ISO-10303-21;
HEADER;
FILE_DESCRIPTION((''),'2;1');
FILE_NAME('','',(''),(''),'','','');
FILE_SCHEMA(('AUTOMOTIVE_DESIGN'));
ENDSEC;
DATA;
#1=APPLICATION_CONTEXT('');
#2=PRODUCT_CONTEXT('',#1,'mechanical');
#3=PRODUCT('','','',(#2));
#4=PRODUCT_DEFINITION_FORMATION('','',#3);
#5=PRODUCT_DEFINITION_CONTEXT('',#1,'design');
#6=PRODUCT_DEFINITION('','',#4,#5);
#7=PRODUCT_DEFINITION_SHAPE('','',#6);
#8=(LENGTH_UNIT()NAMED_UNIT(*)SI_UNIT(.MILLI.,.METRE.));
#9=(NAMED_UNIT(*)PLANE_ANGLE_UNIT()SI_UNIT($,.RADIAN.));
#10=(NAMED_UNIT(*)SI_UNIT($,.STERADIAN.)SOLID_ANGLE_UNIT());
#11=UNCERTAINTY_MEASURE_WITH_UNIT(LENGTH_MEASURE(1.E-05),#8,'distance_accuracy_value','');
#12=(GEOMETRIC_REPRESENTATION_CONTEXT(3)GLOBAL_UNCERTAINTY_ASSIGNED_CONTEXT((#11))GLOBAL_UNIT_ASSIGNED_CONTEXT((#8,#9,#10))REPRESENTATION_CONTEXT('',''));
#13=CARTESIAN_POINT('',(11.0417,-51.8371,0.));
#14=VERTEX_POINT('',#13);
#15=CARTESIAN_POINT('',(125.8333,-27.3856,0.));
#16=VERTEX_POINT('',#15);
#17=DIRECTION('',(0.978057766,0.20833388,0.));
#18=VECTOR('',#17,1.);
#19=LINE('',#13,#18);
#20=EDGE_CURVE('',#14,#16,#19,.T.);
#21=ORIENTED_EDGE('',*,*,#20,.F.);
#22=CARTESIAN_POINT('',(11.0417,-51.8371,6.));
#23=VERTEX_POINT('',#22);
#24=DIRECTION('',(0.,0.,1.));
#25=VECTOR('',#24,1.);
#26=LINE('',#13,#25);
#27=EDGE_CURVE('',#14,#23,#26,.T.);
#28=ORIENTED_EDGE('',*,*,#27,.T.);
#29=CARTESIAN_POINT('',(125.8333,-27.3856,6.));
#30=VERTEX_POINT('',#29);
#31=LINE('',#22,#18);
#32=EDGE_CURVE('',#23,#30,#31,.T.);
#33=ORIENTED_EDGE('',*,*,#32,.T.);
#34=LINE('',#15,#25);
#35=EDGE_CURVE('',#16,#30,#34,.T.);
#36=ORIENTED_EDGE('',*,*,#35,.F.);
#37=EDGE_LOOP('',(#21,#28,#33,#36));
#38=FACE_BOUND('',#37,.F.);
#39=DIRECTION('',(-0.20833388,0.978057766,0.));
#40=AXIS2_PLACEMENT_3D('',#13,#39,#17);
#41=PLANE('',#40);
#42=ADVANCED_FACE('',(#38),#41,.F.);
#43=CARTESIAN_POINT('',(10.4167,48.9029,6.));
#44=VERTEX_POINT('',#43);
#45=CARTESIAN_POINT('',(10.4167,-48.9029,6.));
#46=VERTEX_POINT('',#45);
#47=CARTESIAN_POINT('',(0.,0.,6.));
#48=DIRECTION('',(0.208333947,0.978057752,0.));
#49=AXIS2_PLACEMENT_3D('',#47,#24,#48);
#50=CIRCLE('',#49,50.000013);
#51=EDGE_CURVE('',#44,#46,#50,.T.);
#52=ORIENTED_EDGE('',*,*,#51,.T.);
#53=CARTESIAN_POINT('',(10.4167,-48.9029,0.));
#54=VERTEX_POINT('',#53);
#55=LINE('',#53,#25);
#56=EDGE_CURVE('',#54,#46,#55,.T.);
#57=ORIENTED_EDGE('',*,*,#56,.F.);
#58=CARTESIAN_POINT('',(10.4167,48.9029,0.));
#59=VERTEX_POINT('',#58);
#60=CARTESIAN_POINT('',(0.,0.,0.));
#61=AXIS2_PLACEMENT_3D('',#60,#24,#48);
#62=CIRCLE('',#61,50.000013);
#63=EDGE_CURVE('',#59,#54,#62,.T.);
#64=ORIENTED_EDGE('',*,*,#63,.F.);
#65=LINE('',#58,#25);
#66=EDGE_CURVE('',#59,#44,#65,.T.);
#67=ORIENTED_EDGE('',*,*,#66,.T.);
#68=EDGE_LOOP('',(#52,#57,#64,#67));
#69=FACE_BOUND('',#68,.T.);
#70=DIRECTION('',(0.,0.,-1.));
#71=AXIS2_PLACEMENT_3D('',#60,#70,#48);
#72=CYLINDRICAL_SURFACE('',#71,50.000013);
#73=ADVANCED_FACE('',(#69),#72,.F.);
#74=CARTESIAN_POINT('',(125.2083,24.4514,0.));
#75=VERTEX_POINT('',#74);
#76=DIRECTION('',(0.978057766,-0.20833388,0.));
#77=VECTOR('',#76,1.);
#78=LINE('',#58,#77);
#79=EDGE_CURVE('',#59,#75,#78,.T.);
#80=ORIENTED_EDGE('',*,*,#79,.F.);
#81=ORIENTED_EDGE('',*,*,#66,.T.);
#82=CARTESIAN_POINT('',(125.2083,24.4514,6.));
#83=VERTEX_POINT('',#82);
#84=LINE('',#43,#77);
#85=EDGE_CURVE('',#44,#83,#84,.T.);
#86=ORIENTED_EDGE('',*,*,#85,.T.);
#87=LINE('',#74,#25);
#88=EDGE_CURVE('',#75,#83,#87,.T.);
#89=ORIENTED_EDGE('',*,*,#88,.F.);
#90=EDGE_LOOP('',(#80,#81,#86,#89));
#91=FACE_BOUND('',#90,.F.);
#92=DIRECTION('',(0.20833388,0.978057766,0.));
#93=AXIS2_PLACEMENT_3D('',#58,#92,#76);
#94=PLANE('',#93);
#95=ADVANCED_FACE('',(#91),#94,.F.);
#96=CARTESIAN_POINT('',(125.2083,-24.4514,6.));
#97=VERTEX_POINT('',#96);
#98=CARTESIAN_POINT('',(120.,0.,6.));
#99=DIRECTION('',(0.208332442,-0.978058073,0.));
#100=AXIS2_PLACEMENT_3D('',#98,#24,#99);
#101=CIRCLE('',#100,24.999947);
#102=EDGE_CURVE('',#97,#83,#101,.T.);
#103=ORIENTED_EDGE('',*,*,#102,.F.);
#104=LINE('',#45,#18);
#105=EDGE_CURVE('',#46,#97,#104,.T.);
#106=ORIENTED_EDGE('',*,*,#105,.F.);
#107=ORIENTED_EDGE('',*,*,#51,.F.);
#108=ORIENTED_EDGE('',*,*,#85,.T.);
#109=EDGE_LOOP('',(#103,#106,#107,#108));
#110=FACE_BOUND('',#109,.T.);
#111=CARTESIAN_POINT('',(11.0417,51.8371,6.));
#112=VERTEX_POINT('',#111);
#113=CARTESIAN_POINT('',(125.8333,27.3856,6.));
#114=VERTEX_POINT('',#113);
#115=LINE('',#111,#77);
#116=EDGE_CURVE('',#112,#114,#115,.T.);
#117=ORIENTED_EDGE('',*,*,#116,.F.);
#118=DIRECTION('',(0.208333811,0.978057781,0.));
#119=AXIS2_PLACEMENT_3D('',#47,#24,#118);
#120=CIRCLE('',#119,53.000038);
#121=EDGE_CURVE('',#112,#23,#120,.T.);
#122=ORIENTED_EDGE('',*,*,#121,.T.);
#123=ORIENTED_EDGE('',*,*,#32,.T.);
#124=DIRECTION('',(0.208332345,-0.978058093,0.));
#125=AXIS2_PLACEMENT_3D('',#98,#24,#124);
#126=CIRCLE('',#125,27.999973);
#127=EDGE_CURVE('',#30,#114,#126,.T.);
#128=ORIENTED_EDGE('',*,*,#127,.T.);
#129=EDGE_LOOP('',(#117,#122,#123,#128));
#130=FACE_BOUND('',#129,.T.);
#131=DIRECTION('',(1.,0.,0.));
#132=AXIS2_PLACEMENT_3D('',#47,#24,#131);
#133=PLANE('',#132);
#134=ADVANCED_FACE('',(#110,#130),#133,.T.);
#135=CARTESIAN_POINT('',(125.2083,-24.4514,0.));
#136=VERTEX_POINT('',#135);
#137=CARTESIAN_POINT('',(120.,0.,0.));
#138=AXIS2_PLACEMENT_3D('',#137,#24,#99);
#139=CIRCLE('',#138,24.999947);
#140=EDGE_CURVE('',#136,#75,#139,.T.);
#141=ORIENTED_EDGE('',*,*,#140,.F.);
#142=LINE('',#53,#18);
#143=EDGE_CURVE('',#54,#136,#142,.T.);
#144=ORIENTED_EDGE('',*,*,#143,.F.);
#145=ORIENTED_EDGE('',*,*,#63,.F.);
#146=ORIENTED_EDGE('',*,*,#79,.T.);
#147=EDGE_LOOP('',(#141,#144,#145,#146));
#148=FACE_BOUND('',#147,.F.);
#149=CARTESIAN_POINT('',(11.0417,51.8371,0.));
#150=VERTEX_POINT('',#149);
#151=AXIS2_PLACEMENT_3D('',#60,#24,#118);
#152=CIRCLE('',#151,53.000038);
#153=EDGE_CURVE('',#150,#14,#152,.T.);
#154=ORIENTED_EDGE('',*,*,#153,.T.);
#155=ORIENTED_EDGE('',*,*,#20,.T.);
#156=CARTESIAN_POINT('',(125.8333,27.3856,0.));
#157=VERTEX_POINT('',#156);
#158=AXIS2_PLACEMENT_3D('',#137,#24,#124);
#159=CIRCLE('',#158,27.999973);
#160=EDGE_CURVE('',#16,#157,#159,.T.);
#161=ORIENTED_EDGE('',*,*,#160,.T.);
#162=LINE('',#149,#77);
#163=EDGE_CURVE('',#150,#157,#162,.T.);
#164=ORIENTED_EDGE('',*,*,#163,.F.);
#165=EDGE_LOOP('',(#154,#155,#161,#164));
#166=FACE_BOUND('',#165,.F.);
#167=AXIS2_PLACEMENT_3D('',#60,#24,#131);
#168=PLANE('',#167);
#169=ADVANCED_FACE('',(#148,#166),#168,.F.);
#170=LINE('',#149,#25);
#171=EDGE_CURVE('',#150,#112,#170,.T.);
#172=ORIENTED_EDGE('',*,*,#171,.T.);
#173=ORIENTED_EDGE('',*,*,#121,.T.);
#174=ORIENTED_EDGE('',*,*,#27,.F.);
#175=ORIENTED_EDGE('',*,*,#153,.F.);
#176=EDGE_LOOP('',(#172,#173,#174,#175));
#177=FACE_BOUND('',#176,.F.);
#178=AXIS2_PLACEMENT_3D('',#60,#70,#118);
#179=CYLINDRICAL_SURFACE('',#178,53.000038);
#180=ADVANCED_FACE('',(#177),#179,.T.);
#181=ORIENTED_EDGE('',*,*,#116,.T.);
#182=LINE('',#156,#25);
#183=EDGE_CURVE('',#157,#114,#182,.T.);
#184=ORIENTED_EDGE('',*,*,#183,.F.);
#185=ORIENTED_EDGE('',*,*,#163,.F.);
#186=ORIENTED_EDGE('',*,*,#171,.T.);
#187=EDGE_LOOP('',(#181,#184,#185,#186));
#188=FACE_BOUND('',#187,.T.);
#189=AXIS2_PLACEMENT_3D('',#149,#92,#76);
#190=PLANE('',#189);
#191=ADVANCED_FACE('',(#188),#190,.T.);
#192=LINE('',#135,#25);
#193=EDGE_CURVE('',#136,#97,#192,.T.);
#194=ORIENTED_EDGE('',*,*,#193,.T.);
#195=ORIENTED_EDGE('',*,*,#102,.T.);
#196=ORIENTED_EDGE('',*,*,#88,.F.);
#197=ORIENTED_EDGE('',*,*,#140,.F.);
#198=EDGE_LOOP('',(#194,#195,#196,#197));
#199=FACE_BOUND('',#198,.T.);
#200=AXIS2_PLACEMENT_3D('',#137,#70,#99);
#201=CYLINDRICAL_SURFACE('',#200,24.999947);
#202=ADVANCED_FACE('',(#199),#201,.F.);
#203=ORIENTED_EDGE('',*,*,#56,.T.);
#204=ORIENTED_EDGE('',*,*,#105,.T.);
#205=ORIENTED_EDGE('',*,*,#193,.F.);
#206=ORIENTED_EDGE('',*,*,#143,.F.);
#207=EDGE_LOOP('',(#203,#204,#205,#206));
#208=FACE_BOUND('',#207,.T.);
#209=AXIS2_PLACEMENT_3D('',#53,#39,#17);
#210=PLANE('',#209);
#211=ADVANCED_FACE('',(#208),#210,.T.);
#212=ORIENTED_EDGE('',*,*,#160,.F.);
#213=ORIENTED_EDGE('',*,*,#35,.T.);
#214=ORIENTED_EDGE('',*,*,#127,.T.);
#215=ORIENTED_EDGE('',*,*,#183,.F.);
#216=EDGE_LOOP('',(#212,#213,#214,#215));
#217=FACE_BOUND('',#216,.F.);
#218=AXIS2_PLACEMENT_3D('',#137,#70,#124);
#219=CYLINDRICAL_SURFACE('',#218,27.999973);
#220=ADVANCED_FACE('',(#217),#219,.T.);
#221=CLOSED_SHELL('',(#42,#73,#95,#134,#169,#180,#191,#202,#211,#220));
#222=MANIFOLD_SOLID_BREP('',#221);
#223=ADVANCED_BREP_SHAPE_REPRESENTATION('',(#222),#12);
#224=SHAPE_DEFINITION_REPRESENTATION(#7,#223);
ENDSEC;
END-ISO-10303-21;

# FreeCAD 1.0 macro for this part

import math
import FreeCAD as App
import Part
import Sketcher

V = App.Vector

doc = App.newDocument("Part")
body = doc.addObject("PartDesign::Body", "Body")

# Sketch on XY plane
sketch1 = doc.addObject("Sketcher::SketchObject", "Sketch")
body.addObject(sketch1)
sketch1.AttachmentSupport = (doc.XY_Plane, [""])
sketch1.MapMode = "FlatFace"
sketch1.addGeometry(Part.LineSegment(V(126, 27, 0), V(11, 52, 0)), False)
sketch1.addGeometry(Part.ArcOfCircle(Part.Circle(V(0, 0, 0), V(0, 0, 1), 53), math.radians(78), math.radians(282)), False)
sketch1.addGeometry(Part.LineSegment(V(11, -52, 0), V(126, -27, 0)), False)
sketch1.addGeometry(Part.ArcOfCircle(Part.Circle(V(120, 0, 0), V(0, 0, 1), 28), math.radians(-78), math.radians(78)), False)
sketch1.addGeometry(Part.ArcOfCircle(Part.Circle(V(0, 0, 0), V(0, 0, 1), 50), math.radians(78), math.radians(282)), False)
sketch1.addGeometry(Part.LineSegment(V(10, 49, 0), V(125, 24, 0)), False)
sketch1.addGeometry(Part.ArcOfCircle(Part.Circle(V(120, 0, 0), V(0, 0, 1), 25), math.radians(-78), math.radians(78)), False)
sketch1.addGeometry(Part.LineSegment(V(125, -24, 0), V(10, -49, 0)), False)
sketch1.addConstraint(Sketcher.Constraint("Tangent", 0, 2, 1, 1))
sketch1.addConstraint(Sketcher.Constraint("Tangent", 1, 2, 2, 1))
sketch1.addConstraint(Sketcher.Constraint("Tangent", 2, 2, 3, 1))
sketch1.addConstraint(Sketcher.Constraint("Tangent", 3, 2, 0, 1))
sketch1.addConstraint(Sketcher.Constraint("Tangent", 4, 1, 5, 1))
sketch1.addConstraint(Sketcher.Constraint("Tangent", 5, 2, 6, 2))
sketch1.addConstraint(Sketcher.Constraint("Tangent", 6, 1, 7, 1))
sketch1.addConstraint(Sketcher.Constraint("Tangent", 7, 2, 4, 2))
sketch1.addConstraint(Sketcher.Constraint("Coincident", 1, 3, -1, 1))
sketch1.addConstraint(Sketcher.Constraint("Coincident", 4, 3, -1, 1))
sketch1.addConstraint(Sketcher.Constraint("Coincident", 6, 3, 3, 3))
sketch1.addConstraint(Sketcher.Constraint("PointOnObject", 3, 3, -1))
sketch1.addConstraint(Sketcher.Constraint("Parallel", 0, 5))
sketch1.addConstraint(Sketcher.Constraint("Radius", 1, 53.0))
sketch1.addConstraint(Sketcher.Constraint("Radius", 3, 28.0))
sketch1.addConstraint(Sketcher.Constraint("Radius", 4, 50.0))
sketch1.addConstraint(Sketcher.Constraint("DistanceX", -1, 1, 3, 3, 120.0))
pad1 = doc.addObject("PartDesign::Pad", "Pad")
body.addObject(pad1)
pad1.Profile = sketch1
pad1.Length = 6

doc.recompute()
